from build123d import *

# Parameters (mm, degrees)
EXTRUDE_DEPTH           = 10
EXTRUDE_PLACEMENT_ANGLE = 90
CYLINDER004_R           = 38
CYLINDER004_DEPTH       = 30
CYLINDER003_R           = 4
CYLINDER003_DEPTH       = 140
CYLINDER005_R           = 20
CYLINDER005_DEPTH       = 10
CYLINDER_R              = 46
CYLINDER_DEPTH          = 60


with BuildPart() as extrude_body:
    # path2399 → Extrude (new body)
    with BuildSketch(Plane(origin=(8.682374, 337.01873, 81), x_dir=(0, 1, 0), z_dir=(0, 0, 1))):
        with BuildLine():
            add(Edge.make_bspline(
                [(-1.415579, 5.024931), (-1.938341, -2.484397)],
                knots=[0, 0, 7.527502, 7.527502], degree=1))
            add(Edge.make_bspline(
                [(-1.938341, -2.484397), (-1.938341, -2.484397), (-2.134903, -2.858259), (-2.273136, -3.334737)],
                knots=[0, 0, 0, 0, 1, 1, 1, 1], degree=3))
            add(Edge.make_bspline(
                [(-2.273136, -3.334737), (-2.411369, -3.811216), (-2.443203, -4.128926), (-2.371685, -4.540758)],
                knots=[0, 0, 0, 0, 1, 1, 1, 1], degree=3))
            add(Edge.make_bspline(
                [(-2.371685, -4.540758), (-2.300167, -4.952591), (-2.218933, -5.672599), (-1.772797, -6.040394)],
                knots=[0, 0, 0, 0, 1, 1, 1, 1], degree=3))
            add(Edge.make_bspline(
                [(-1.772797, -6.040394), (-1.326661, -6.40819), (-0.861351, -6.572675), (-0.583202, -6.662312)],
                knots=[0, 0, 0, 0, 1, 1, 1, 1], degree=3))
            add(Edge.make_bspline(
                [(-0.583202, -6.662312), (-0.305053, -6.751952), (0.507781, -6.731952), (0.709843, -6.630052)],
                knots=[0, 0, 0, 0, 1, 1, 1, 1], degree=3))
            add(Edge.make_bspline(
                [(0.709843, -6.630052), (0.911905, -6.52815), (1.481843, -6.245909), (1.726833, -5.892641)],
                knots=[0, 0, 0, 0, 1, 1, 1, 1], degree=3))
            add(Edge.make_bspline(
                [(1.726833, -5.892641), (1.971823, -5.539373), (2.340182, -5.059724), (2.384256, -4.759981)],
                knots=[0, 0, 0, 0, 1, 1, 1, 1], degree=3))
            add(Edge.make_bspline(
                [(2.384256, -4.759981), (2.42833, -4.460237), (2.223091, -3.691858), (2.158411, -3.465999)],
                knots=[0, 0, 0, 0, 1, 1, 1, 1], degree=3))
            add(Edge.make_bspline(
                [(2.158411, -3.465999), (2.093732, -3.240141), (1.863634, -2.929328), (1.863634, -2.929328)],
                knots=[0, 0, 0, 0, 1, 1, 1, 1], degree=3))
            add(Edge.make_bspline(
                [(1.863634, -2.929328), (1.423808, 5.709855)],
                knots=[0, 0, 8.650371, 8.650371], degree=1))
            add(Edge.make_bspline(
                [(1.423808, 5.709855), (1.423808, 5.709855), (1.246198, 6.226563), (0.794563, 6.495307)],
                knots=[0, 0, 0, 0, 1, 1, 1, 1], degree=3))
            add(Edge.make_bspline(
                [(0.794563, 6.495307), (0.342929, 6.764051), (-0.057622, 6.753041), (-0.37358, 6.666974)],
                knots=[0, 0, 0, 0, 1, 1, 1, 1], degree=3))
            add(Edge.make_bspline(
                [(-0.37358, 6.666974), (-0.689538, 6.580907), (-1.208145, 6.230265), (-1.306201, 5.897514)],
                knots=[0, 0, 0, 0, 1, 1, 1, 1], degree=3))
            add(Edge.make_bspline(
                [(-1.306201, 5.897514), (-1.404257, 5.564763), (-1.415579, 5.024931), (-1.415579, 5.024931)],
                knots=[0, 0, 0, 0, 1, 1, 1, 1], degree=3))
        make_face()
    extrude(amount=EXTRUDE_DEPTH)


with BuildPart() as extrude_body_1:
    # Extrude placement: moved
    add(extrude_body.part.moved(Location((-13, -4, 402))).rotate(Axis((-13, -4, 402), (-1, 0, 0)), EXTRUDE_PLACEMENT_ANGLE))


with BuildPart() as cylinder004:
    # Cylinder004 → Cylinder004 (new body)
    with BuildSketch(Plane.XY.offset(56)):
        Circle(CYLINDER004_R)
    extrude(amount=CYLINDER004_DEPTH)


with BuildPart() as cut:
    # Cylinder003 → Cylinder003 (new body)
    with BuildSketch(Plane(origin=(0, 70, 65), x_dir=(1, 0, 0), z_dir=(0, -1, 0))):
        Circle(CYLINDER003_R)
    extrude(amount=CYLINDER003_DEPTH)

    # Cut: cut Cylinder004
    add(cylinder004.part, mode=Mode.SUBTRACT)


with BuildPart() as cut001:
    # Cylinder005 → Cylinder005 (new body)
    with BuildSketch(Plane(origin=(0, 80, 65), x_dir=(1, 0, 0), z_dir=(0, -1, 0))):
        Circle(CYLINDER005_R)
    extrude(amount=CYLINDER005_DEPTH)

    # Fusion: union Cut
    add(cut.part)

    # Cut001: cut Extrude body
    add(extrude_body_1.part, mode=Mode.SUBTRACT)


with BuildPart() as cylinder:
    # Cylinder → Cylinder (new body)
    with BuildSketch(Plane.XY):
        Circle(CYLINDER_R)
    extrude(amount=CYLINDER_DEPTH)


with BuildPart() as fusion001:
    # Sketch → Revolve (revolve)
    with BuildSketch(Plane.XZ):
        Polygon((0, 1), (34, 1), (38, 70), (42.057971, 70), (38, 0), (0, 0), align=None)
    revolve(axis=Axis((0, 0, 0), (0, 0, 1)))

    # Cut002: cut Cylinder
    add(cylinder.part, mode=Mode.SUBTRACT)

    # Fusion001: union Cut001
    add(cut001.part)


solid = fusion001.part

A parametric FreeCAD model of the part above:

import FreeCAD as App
import Part
import Sketcher
Q = App.Units.Quantity


def add_polygon(sketch, points):
    """Adds a closed chain of lines whose ends are joined by coincident constraints."""
    first, n = sketch.GeometryCount, len(points)
    for a, b in zip(points, points[1:] + points[:1]):
        sketch.addGeometry(Part.LineSegment(App.Vector(*a, 0), App.Vector(*b, 0)), False)
    for i in range(n):
        sketch.addConstraint(Sketcher.Constraint("Coincident", first + i, 2, first + (i + 1) % n, 1))

doc = App.newDocument("Part")
body = doc.addObject("PartDesign::Body", "Body")

sketch1 = body.newObject("Sketcher::SketchObject", "Sketch")
sketch1.AttachmentSupport = (doc.getObject("XY_Plane"), [""])
sketch1.MapMode = "FlatFace"
sketch1.AttachmentOffset = App.Placement(App.Vector(0, 0, 81), App.Rotation())
sketch1.addGeometry(Part.BSplineCurve([App.Vector(3.657443, 335.603151, 0), App.Vector(11.166771, 335.080389, 0)], [2, 2], [0, 7.527502], False, 1, [1, 1], False), False)
sketch1.addGeometry(Part.BSplineCurve([App.Vector(11.166771, 335.080389, 0), App.Vector(11.166771, 335.080389, 0), App.Vector(11.540633, 334.883827, 0), App.Vector(12.017111, 334.745594, 0)], [4, 4], [0, 1], False, 3, [1, 1, 1, 1], False), False)
sketch1.addGeometry(Part.BSplineCurve([App.Vector(12.017111, 334.745594, 0), App.Vector(12.49359, 334.607361, 0), App.Vector(12.8113, 334.575527, 0), App.Vector(13.223132, 334.647045, 0)], [4, 4], [0, 1], False, 3, [1, 1, 1, 1], False), False)
sketch1.addGeometry(Part.BSplineCurve([App.Vector(13.223132, 334.647045, 0), App.Vector(13.634965, 334.718563, 0), App.Vector(14.354973, 334.799797, 0), App.Vector(14.722768, 335.245933, 0)], [4, 4], [0, 1], False, 3, [1, 1, 1, 1], False), False)
sketch1.addGeometry(Part.BSplineCurve([App.Vector(14.722768, 335.245933, 0), App.Vector(15.090564, 335.692069, 0), App.Vector(15.255049, 336.157379, 0), App.Vector(15.344686, 336.435528, 0)], [4, 4], [0, 1], False, 3, [1, 1, 1, 1], False), False)
sketch1.addGeometry(Part.BSplineCurve([App.Vector(15.344686, 336.435528, 0), App.Vector(15.434326, 336.713677, 0), App.Vector(15.414326, 337.526511, 0), App.Vector(15.312426, 337.728573, 0)], [4, 4], [0, 1], False, 3, [1, 1, 1, 1], False), False)
sketch1.addGeometry(Part.BSplineCurve([App.Vector(15.312426, 337.728573, 0), App.Vector(15.210524, 337.930635, 0), App.Vector(14.928283, 338.500573, 0), App.Vector(14.575015, 338.745563, 0)], [4, 4], [0, 1], False, 3, [1, 1, 1, 1], False), False)
sketch1.addGeometry(Part.BSplineCurve([App.Vector(14.575015, 338.745563, 0), App.Vector(14.221747, 338.990553, 0), App.Vector(13.742098, 339.358912, 0), App.Vector(13.442355, 339.402986, 0)], [4, 4], [0, 1], False, 3, [1, 1, 1, 1], False), False)
sketch1.addGeometry(Part.BSplineCurve([App.Vector(13.442355, 339.402986, 0), App.Vector(13.142611, 339.44706, 0), App.Vector(12.374232, 339.241821, 0), App.Vector(12.148373, 339.177141, 0)], [4, 4], [0, 1], False, 3, [1, 1, 1, 1], False), False)
sketch1.addGeometry(Part.BSplineCurve([App.Vector(12.148373, 339.177141, 0), App.Vector(11.922515, 339.112462, 0), App.Vector(11.611702, 338.882364, 0), App.Vector(11.611702, 338.882364, 0)], [4, 4], [0, 1], False, 3, [1, 1, 1, 1], False), False)
sketch1.addGeometry(Part.BSplineCurve([App.Vector(11.611702, 338.882364, 0), App.Vector(2.972519, 338.442538, 0)], [2, 2], [0, 8.650371], False, 1, [1, 1], False), False)
sketch1.addGeometry(Part.BSplineCurve([App.Vector(2.972519, 338.442538, 0), App.Vector(2.972519, 338.442538, 0), App.Vector(2.455811, 338.264928, 0), App.Vector(2.187067, 337.813293, 0)], [4, 4], [0, 1], False, 3, [1, 1, 1, 1], False), False)
sketch1.addGeometry(Part.BSplineCurve([App.Vector(2.187067, 337.813293, 0), App.Vector(1.918323, 337.361659, 0), App.Vector(1.929333, 336.961108, 0), App.Vector(2.0154, 336.64515, 0)], [4, 4], [0, 1], False, 3, [1, 1, 1, 1], False), False)
sketch1.addGeometry(Part.BSplineCurve([App.Vector(2.0154, 336.64515, 0), App.Vector(2.101467, 336.329192, 0), App.Vector(2.452109, 335.810585, 0), App.Vector(2.78486, 335.712529, 0)], [4, 4], [0, 1], False, 3, [1, 1, 1, 1], False), False)
sketch1.addGeometry(Part.BSplineCurve([App.Vector(2.78486, 335.712529, 0), App.Vector(3.117611, 335.614473, 0), App.Vector(3.657443, 335.603151, 0), App.Vector(3.657443, 335.603151, 0)], [4, 4], [0, 1], False, 3, [1, 1, 1, 1], False), False)
sketch1.addConstraint(Sketcher.Constraint("Block", 0))
sketch1.addConstraint(Sketcher.Constraint("Block", 1))
sketch1.addConstraint(Sketcher.Constraint("Block", 2))
sketch1.addConstraint(Sketcher.Constraint("Block", 3))
sketch1.addConstraint(Sketcher.Constraint("Block", 4))
sketch1.addConstraint(Sketcher.Constraint("Block", 5))
sketch1.addConstraint(Sketcher.Constraint("Block", 6))
sketch1.addConstraint(Sketcher.Constraint("Block", 7))
sketch1.addConstraint(Sketcher.Constraint("Block", 8))
sketch1.addConstraint(Sketcher.Constraint("Block", 9))
sketch1.addConstraint(Sketcher.Constraint("Block", 10))
sketch1.addConstraint(Sketcher.Constraint("Block", 11))
sketch1.addConstraint(Sketcher.Constraint("Block", 12))
sketch1.addConstraint(Sketcher.Constraint("Block", 13))
sketch1.addConstraint(Sketcher.Constraint("Block", 14))
pad1 = body.newObject("PartDesign::Pad", "Pad")
pad1.Profile = sketch1
pad1.Length = 10
body2 = doc.addObject("PartDesign::Body", "Body001")
doc.recompute()

body.Placement = App.Placement(App.Vector(-13, -4, 402), App.Rotation(App.Vector(-1, 0, 0), 90))
boolean = body2.newObject("PartDesign::Boolean", "Boolean")
boolean.Type = "Fuse"
boolean.addObjects([body])
body3 = doc.addObject("PartDesign::Body", "Body002")

sketch2 = body3.newObject("Sketcher::SketchObject", "Sketch001")
sketch2.AttachmentSupport = (doc.getObject("XY_Plane002"), [""])
sketch2.MapMode = "FlatFace"
sketch2.AttachmentOffset = App.Placement(App.Vector(0, 0, 56), App.Rotation())
sketch2.addGeometry(Part.Circle(App.Vector(0, 0, 0), App.Vector(0, 0, 1), 38), False)
sketch2.addConstraint(Sketcher.Constraint("Coincident", 0, 3, -1, 1))
sketch2.addConstraint(Sketcher.Constraint("Diameter", 0, Q("76 mm")))
pad2 = body3.newObject("PartDesign::Pad", "Pad001")
pad2.Profile = sketch2
pad2.Length = 30
body4 = doc.addObject("PartDesign::Body", "Body003")
body4.AllowCompound = True

sketch3 = body4.newObject("Sketcher::SketchObject", "Sketch002")
sketch3.AttachmentSupport = (doc.getObject("XZ_Plane003"), [""])
sketch3.MapMode = "FlatFace"
sketch3.AttachmentOffset = App.Placement(App.Vector(0, 0, -70), App.Rotation())
sketch3.addGeometry(Part.Circle(App.Vector(0, 65, 0), App.Vector(0, 0, 1), 4), False)
sketch3.addConstraint(Sketcher.Constraint("PointOnObject", 0, 3, -2))
sketch3.addConstraint(Sketcher.Constraint("Diameter", 0, Q("8 mm")))
sketch3.addConstraint(Sketcher.Constraint("DistanceY", -1, 1, 0, 3, Q("65 mm")))
pad3 = body4.newObject("PartDesign::Pad", "Pad002")
pad3.Profile = sketch3
pad3.Length = 140
doc.recompute()

boolean2 = body4.newObject("PartDesign::Boolean", "Boolean001")
boolean2.Type = "Cut"
boolean2.addObjects([body3])
body5 = doc.addObject("PartDesign::Body", "Body004")
body5.AllowCompound = True

sketch4 = body5.newObject("Sketcher::SketchObject", "Sketch003")
sketch4.AttachmentSupport = (doc.getObject("XZ_Plane004"), [""])
sketch4.MapMode = "FlatFace"
sketch4.AttachmentOffset = App.Placement(App.Vector(0, 0, -80), App.Rotation())
sketch4.addGeometry(Part.Circle(App.Vector(0, 65, 0), App.Vector(0, 0, 1), 20), False)
sketch4.addConstraint(Sketcher.Constraint("PointOnObject", 0, 3, -2))
sketch4.addConstraint(Sketcher.Constraint("Diameter", 0, Q("40 mm")))
sketch4.addConstraint(Sketcher.Constraint("DistanceY", -1, 1, 0, 3, Q("65 mm")))
pad4 = body5.newObject("PartDesign::Pad", "Pad003")
pad4.Profile = sketch4
pad4.Length = 10
doc.recompute()

boolean3 = body5.newObject("PartDesign::Boolean", "Boolean002")
boolean3.Type = "Fuse"
boolean3.addObjects([body4])
doc.recompute()

boolean4 = body5.newObject("PartDesign::Boolean", "Boolean003")
boolean4.Type = "Cut"
boolean4.addObjects([body2])
body6 = doc.addObject("PartDesign::Body", "Body005")

sketch5 = body6.newObject("Sketcher::SketchObject", "Sketch004")
sketch5.AttachmentSupport = (doc.getObject("XY_Plane005"), [""])
sketch5.MapMode = "FlatFace"
sketch5.addGeometry(Part.Circle(App.Vector(0, 0, 0), App.Vector(0, 0, 1), 46), False)
sketch5.addConstraint(Sketcher.Constraint("Coincident", 0, 3, -1, 1))
sketch5.addConstraint(Sketcher.Constraint("Diameter", 0, Q("92 mm")))
pad5 = body6.newObject("PartDesign::Pad", "Pad004")
pad5.Profile = sketch5
pad5.Length = 60
body7 = doc.addObject("PartDesign::Body", "Body006")

sketch6 = body7.newObject("Sketcher::SketchObject", "Sketch005")
sketch6.AttachmentSupport = (doc.getObject("XZ_Plane006"), [""])
sketch6.MapMode = "FlatFace"
add_polygon(sketch6, [(34, 1), (0, 1), (0, 0), (38, 0), (42.057971, 70), (38, 70)])
sketch6.addConstraint(Sketcher.Constraint("Horizontal", 0))
sketch6.addConstraint(Sketcher.Constraint("Vertical", 1))
sketch6.addConstraint(Sketcher.Constraint("Horizontal", 2))
sketch6.addConstraint(Sketcher.Constraint("Horizontal", 4))
sketch6.addConstraint(Sketcher.Constraint("Coincident", 1, 2, -1, 1))
sketch6.addConstraint(Sketcher.Constraint("Parallel", 3, 5))
sketch6.addConstraint(Sketcher.Constraint("Vertical", 2, 2, 4, 2))
sketch6.addConstraint(Sketcher.Constraint("DistanceX", 0, 2, 0, 1, Q("34 mm")))
sketch6.addConstraint(Sketcher.Constraint("DistanceX", 2, 1, 2, 2, Q("38 mm")))
sketch6.addConstraint(Sketcher.Constraint("DistanceY", 1, 2, 1, 1, Q("1 mm")))
sketch6.addConstraint(Sketcher.Constraint("DistanceY", -1, 1, 3, 2, Q("70 mm")))
revolution = body7.newObject("PartDesign::Revolution", "Revolution")
revolution.Profile = sketch6
revolution.ReferenceAxis = (sketch6, ["V_Axis"])
revolution.Angle = 360
doc.recompute()

boolean5 = body7.newObject("PartDesign::Boolean", "Boolean004")
boolean5.Type = "Cut"
boolean5.addObjects([body6])
doc.recompute()

boolean6 = body7.newObject("PartDesign::Boolean", "Boolean005")
boolean6.Type = "Fuse"
boolean6.addObjects([body5])

doc.recompute()
